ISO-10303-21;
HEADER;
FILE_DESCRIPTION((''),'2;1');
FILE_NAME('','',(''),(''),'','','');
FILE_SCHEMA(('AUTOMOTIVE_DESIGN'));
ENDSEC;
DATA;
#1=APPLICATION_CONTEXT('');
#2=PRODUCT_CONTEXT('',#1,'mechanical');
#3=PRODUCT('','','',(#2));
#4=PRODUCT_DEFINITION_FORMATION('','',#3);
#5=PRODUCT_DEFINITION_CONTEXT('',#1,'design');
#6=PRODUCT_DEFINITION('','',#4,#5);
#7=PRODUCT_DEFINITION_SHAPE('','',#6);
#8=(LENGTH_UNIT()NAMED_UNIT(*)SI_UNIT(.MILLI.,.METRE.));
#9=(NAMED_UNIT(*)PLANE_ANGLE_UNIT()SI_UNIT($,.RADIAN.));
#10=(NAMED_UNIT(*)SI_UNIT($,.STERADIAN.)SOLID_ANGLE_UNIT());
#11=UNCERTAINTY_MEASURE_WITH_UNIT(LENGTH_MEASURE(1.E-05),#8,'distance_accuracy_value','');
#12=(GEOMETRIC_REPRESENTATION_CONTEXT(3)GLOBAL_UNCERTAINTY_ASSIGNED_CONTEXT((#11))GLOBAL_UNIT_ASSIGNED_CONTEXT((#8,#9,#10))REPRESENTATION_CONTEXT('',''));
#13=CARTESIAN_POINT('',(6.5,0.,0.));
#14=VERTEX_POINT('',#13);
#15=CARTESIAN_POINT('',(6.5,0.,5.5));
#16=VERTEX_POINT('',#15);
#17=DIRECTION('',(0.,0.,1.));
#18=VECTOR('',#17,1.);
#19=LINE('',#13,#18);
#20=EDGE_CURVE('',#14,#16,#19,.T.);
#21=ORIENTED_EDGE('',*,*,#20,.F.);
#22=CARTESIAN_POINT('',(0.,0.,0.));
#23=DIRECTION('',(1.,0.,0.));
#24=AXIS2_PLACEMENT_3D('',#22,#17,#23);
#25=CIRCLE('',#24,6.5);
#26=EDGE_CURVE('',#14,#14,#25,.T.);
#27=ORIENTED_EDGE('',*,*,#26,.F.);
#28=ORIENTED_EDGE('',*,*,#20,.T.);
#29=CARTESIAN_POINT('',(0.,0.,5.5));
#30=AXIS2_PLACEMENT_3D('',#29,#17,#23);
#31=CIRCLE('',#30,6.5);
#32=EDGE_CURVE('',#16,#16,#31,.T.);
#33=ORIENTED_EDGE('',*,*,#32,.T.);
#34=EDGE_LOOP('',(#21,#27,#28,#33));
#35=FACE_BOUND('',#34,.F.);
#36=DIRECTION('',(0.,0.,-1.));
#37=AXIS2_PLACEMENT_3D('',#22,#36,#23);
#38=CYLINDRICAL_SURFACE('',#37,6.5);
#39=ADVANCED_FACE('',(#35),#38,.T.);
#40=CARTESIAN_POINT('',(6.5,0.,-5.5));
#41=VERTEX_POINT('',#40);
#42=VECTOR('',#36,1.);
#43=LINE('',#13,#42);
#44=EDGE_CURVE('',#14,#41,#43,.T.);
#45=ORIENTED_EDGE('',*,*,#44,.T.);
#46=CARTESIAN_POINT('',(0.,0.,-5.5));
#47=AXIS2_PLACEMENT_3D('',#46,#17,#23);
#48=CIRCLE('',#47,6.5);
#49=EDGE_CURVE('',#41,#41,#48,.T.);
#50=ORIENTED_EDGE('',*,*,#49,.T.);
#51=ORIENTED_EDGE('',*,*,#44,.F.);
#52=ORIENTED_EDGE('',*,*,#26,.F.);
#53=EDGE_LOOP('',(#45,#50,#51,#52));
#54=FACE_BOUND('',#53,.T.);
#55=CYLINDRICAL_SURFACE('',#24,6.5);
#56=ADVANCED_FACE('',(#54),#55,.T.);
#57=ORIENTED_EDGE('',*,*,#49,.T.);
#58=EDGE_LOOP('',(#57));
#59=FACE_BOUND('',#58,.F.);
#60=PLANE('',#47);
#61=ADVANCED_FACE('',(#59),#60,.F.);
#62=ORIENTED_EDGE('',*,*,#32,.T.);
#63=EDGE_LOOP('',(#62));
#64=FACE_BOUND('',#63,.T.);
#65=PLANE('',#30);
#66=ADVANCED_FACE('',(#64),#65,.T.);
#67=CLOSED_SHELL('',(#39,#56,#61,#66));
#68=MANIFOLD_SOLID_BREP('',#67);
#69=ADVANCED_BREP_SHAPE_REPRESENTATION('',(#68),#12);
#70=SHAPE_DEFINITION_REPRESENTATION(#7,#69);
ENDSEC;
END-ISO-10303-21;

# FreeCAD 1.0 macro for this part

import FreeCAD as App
import Part
import Sketcher
from FreeCAD import Vector

doc = App.newDocument("Part")
params = doc.addObject("Spreadsheet::Sheet", "Params")
for row, (alias, value) in enumerate([
    ("sketch1_diameter", "13 mm"),
    ("pad1_length", "11 mm"),
], start=1):
    params.set(f"A{row}", alias)
    params.set(f"B{row}", "=" + value)
    params.setAlias(f"B{row}", alias)

body = doc.addObject("PartDesign::Body", "Body")

# Sketch on XY plane
sketch1 = body.newObject("Sketcher::SketchObject", "Sketch")
sketch1.AttachmentSupport = (doc.getObject("XY_Plane"), [""])
sketch1.MapMode = "FlatFace"
sketch1.addGeometry(Part.Circle(Vector(0, 0, 0), Vector(0, 0, 1), 6.5), False)
sketch1.addConstraint([
    Sketcher.Constraint("Coincident", 0, 3, -1, 1),
    Sketcher.Constraint("Diameter", 0, 13.0),
])
sketch1.setExpression("Constraints[1]", "Params.sketch1_diameter")
pad1 = body.newObject("PartDesign::Pad", "Pad")
pad1.Profile = sketch1
pad1.setExpression("Length", "Params.pad1_length")
pad1.Midplane = True

doc.recompute()
